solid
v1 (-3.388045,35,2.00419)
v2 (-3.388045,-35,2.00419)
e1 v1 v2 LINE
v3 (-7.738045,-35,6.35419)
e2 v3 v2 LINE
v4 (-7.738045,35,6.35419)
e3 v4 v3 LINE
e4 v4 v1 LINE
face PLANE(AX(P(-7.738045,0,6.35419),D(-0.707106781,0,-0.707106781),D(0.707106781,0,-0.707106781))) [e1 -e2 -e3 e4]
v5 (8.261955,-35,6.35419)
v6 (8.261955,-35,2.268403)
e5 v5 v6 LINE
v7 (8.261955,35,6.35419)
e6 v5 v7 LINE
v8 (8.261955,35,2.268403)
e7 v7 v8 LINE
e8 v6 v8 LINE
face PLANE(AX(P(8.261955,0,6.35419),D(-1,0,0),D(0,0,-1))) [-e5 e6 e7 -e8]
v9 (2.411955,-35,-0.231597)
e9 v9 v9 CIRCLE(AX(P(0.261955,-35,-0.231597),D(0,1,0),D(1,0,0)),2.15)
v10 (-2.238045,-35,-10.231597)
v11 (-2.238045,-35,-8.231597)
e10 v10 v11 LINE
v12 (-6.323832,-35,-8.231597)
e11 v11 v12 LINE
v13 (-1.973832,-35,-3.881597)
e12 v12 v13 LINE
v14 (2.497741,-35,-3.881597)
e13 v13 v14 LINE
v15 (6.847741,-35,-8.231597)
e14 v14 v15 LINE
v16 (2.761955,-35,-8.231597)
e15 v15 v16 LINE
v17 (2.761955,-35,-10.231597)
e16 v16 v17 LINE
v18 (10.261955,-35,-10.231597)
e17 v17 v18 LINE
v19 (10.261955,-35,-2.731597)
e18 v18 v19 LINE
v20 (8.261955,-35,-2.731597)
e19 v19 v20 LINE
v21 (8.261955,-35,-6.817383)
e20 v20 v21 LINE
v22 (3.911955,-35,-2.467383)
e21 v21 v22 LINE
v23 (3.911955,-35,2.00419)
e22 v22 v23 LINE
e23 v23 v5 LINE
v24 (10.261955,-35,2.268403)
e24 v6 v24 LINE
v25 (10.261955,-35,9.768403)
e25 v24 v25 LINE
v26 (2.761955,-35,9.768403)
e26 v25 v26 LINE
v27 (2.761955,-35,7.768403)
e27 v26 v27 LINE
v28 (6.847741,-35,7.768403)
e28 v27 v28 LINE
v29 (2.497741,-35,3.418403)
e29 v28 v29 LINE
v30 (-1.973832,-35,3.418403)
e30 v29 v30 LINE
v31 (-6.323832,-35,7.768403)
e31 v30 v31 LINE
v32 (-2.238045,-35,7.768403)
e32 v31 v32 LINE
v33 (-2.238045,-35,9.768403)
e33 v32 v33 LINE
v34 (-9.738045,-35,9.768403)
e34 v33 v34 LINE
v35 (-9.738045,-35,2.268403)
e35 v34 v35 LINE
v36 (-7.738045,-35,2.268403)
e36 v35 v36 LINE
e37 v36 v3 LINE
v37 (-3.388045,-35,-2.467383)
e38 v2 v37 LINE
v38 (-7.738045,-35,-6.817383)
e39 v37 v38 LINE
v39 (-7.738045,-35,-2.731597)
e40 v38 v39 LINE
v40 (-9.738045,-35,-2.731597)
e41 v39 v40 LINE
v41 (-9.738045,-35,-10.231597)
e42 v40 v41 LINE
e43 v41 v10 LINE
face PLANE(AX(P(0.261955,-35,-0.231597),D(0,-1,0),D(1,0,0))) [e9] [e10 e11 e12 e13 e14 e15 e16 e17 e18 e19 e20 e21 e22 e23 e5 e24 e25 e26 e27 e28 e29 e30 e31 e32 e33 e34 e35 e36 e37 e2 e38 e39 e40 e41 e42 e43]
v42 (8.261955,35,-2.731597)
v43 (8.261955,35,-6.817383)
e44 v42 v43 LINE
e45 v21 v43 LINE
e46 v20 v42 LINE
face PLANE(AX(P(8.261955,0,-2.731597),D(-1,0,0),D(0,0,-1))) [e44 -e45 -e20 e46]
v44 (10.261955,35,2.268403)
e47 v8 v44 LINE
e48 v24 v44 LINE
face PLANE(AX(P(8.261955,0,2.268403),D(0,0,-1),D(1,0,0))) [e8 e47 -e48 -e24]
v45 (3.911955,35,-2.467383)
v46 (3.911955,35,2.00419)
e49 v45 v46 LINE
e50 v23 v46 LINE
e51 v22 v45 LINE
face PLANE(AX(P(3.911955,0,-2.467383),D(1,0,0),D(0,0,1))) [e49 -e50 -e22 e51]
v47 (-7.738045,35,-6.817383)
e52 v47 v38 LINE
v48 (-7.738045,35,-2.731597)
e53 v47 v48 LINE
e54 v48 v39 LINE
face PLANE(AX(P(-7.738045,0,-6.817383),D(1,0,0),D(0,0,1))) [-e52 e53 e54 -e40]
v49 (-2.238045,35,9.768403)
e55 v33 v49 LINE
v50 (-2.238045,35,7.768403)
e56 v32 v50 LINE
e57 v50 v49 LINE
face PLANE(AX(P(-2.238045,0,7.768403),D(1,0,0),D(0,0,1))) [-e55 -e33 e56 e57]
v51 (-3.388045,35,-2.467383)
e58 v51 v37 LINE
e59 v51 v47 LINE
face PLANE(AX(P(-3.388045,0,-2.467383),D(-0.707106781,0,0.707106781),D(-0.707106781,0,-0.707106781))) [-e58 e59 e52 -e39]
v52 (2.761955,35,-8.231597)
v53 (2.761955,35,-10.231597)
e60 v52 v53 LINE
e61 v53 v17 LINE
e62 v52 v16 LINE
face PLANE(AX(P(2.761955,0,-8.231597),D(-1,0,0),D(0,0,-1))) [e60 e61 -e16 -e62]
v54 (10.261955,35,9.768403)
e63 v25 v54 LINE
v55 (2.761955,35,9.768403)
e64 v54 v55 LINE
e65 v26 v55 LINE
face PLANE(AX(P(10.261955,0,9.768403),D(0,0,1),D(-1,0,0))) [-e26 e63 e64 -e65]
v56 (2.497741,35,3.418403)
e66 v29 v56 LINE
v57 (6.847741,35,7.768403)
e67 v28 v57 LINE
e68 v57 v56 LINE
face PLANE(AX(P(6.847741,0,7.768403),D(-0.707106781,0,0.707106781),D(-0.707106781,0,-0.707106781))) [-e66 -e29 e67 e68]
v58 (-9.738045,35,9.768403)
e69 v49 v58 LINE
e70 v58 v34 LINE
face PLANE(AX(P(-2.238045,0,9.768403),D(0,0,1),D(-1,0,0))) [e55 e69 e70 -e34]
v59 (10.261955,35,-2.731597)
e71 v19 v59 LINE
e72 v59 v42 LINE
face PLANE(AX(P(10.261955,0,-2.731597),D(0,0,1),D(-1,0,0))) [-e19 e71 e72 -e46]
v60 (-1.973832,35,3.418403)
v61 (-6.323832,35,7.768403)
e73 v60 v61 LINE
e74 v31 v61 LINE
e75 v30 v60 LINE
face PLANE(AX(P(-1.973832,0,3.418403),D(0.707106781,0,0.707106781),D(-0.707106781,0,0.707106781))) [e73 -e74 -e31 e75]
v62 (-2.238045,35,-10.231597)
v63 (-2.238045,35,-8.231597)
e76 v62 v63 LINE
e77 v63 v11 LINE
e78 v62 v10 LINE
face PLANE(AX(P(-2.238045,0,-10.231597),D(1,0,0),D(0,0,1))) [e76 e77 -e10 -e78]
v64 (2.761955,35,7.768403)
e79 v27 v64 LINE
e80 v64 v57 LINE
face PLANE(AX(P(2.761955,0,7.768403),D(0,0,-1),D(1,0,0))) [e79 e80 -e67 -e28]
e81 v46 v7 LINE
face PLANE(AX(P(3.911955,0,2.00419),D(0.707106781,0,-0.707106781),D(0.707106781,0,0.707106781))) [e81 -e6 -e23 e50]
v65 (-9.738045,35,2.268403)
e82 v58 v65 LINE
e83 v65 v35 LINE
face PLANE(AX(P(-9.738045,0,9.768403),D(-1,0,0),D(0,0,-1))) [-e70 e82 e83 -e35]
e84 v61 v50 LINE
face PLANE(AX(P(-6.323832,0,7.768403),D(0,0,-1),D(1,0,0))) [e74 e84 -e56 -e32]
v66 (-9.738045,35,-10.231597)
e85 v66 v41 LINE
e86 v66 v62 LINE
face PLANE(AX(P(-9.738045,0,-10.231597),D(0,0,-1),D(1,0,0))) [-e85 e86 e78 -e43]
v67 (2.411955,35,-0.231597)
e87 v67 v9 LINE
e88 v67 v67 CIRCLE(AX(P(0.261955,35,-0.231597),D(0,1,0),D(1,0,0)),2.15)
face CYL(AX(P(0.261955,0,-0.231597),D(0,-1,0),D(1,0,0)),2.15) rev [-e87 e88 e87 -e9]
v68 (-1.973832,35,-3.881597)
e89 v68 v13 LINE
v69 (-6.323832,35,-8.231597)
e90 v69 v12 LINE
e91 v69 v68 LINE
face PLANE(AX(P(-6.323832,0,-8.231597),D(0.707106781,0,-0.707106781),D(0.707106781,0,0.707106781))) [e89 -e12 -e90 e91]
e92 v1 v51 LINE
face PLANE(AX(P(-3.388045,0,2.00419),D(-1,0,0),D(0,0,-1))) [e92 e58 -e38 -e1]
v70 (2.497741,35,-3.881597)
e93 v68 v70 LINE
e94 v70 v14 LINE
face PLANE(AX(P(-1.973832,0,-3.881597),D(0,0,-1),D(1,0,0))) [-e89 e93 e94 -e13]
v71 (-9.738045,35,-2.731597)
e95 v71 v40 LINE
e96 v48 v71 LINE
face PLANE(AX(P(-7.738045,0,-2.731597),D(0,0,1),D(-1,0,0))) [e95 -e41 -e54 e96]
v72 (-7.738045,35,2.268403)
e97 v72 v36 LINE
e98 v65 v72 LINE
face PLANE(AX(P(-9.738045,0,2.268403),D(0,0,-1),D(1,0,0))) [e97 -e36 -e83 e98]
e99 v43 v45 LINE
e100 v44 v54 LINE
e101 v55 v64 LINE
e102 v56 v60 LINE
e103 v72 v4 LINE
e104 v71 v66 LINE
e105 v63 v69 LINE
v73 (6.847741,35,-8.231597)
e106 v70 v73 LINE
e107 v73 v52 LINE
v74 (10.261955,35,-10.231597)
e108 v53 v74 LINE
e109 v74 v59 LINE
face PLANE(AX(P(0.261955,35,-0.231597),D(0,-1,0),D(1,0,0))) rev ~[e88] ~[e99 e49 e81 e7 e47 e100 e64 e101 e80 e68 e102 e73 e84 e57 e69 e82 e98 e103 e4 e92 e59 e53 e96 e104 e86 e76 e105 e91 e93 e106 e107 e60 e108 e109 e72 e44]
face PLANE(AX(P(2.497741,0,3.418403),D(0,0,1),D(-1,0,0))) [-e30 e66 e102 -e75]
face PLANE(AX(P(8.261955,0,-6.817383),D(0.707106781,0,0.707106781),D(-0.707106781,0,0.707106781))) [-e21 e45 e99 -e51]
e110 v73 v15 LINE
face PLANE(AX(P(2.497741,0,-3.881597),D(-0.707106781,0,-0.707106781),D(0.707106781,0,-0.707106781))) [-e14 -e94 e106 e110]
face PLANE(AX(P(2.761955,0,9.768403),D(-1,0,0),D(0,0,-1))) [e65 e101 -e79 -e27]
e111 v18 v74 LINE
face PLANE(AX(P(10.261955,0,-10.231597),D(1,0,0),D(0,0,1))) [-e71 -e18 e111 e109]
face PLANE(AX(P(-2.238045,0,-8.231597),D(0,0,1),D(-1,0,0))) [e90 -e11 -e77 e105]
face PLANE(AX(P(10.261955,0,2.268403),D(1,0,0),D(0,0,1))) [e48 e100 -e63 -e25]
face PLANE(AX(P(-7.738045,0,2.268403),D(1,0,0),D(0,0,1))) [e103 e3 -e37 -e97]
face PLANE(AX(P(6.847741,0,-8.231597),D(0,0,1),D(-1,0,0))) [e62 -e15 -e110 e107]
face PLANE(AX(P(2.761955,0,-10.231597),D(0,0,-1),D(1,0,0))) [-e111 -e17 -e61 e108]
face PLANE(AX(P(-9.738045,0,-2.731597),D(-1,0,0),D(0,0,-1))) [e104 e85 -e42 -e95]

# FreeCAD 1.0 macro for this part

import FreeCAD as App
import Part
import Sketcher
from FreeCAD import Vector

doc = App.newDocument("Part")
body = doc.addObject("PartDesign::Body", "Body")

sketch1 = body.newObject("Sketcher::SketchObject", "Sketch")
sketch1.AttachmentSupport = (doc.getObject("XZ_Plane"), [""])
sketch1.MapMode = "FlatFace"
sketch1.addGeometry([
    Part.LineSegment(Vector(-2.238045, 9.768403, 0), Vector(-9.738045, 9.768403, 0)),
    Part.LineSegment(Vector(-9.738045, 9.768403, 0), Vector(-9.738045, 2.268403, 0)),
    Part.LineSegment(Vector(-9.738045, 2.268403, 0), Vector(-7.738045, 2.268403, 0)),
    Part.LineSegment(Vector(-7.738045, 2.268403, 0), Vector(-7.738045, 6.35419, 0)),
    Part.LineSegment(Vector(-7.738045, 6.35419, 0), Vector(-3.388045, 2.00419, 0)),
    Part.LineSegment(Vector(-3.388045, 2.00419, 0), Vector(-3.388045, -2.467383, 0)),
    Part.LineSegment(Vector(-3.388045, -2.467383, 0), Vector(-7.738045, -6.817383, 0)),
    Part.LineSegment(Vector(-7.738045, -6.817383, 0), Vector(-7.738045, -2.731597, 0)),
    Part.LineSegment(Vector(-7.738045, -2.731597, 0), Vector(-9.738045, -2.731597, 0)),
    Part.LineSegment(Vector(-9.738045, -2.731597, 0), Vector(-9.738045, -10.231597, 0)),
    Part.LineSegment(Vector(-9.738045, -10.231597, 0), Vector(-2.238045, -10.231597, 0)),
    Part.LineSegment(Vector(-2.238045, -10.231597, 0), Vector(-2.238045, -8.231597, 0)),
    Part.LineSegment(Vector(-2.238045, -8.231597, 0), Vector(-6.323832, -8.231597, 0)),
    Part.LineSegment(Vector(-6.323832, -8.231597, 0), Vector(-1.973832, -3.881597, 0)),
    Part.LineSegment(Vector(-1.973832, -3.881597, 0), Vector(2.497741, -3.881597, 0)),
    Part.LineSegment(Vector(2.497741, -3.881597, 0), Vector(6.847741, -8.231597, 0)),
    Part.LineSegment(Vector(6.847741, -8.231597, 0), Vector(2.761955, -8.231597, 0)),
    Part.LineSegment(Vector(2.761955, -8.231597, 0), Vector(2.761955, -10.231597, 0)),
    Part.LineSegment(Vector(2.761955, -10.231597, 0), Vector(10.261955, -10.231597, 0)),
    Part.LineSegment(Vector(10.261955, -10.231597, 0), Vector(10.261955, -2.731597, 0)),
    Part.LineSegment(Vector(10.261955, -2.731597, 0), Vector(8.261955, -2.731597, 0)),
    Part.LineSegment(Vector(8.261955, -2.731597, 0), Vector(8.261955, -6.817383, 0)),
    Part.LineSegment(Vector(8.261955, -6.817383, 0), Vector(3.911955, -2.467383, 0)),
    Part.LineSegment(Vector(3.911955, -2.467383, 0), Vector(3.911955, 2.00419, 0)),
    Part.LineSegment(Vector(3.911955, 2.00419, 0), Vector(8.261955, 6.35419, 0)),
    Part.LineSegment(Vector(8.261955, 6.35419, 0), Vector(8.261955, 2.268403, 0)),
    Part.LineSegment(Vector(8.261955, 2.268403, 0), Vector(10.261955, 2.268403, 0)),
    Part.LineSegment(Vector(10.261955, 2.268403, 0), Vector(10.261955, 9.768403, 0)),
    Part.LineSegment(Vector(10.261955, 9.768403, 0), Vector(2.761955, 9.768403, 0)),
    Part.LineSegment(Vector(2.761955, 9.768403, 0), Vector(2.761955, 7.768403, 0)),
    Part.LineSegment(Vector(2.761955, 7.768403, 0), Vector(6.847741, 7.768403, 0)),
    Part.LineSegment(Vector(6.847741, 7.768403, 0), Vector(2.497741, 3.418403, 0)),
    Part.LineSegment(Vector(2.497741, 3.418403, 0), Vector(-1.973832, 3.418403, 0)),
    Part.LineSegment(Vector(-1.973832, 3.418403, 0), Vector(-6.323832, 7.768403, 0)),
    Part.LineSegment(Vector(-6.323832, 7.768403, 0), Vector(-2.238045, 7.768403, 0)),
    Part.LineSegment(Vector(-2.238045, 7.768403, 0), Vector(-2.238045, 9.768403, 0)),
    Part.Circle(Vector(0.261955, -0.231597, 0), Vector(0, 0, 1), 2.15),
], False)
sketch1.addConstraint([
    Sketcher.Constraint("Coincident", 0, 2, 1, 1),
    Sketcher.Constraint("Coincident", 1, 2, 2, 1),
    Sketcher.Constraint("Coincident", 2, 2, 3, 1),
    Sketcher.Constraint("Coincident", 3, 2, 4, 1),
    Sketcher.Constraint("Coincident", 4, 2, 5, 1),
    Sketcher.Constraint("Coincident", 5, 2, 6, 1),
    Sketcher.Constraint("Coincident", 6, 2, 7, 1),
    Sketcher.Constraint("Coincident", 7, 2, 8, 1),
    Sketcher.Constraint("Coincident", 8, 2, 9, 1),
    Sketcher.Constraint("Coincident", 9, 2, 10, 1),
    Sketcher.Constraint("Coincident", 10, 2, 11, 1),
    Sketcher.Constraint("Coincident", 11, 2, 12, 1),
    Sketcher.Constraint("Coincident", 12, 2, 13, 1),
    Sketcher.Constraint("Coincident", 13, 2, 14, 1),
    Sketcher.Constraint("Coincident", 14, 2, 15, 1),
    Sketcher.Constraint("Coincident", 15, 2, 16, 1),
    Sketcher.Constraint("Coincident", 16, 2, 17, 1),
    Sketcher.Constraint("Coincident", 17, 2, 18, 1),
    Sketcher.Constraint("Coincident", 18, 2, 19, 1),
    Sketcher.Constraint("Coincident", 19, 2, 20, 1),
    Sketcher.Constraint("Coincident", 20, 2, 21, 1),
    Sketcher.Constraint("Coincident", 21, 2, 22, 1),
    Sketcher.Constraint("Coincident", 22, 2, 23, 1),
    Sketcher.Constraint("Coincident", 23, 2, 24, 1),
    Sketcher.Constraint("Coincident", 24, 2, 25, 1),
    Sketcher.Constraint("Coincident", 25, 2, 26, 1),
    Sketcher.Constraint("Coincident", 26, 2, 27, 1),
    Sketcher.Constraint("Coincident", 27, 2, 28, 1),
    Sketcher.Constraint("Coincident", 28, 2, 29, 1),
    Sketcher.Constraint("Coincident", 29, 2, 30, 1),
    Sketcher.Constraint("Coincident", 30, 2, 31, 1),
    Sketcher.Constraint("Coincident", 31, 2, 32, 1),
    Sketcher.Constraint("Coincident", 32, 2, 33, 1),
    Sketcher.Constraint("Coincident", 33, 2, 34, 1),
    Sketcher.Constraint("Coincident", 34, 2, 35, 1),
    Sketcher.Constraint("Coincident", 35, 2, 0, 1),
    Sketcher.Constraint("Horizontal", 0),
    Sketcher.Constraint("Vertical", 1),
    Sketcher.Constraint("Horizontal", 2),
    Sketcher.Constraint("Vertical", 3),
    Sketcher.Constraint("Vertical", 5),
    Sketcher.Constraint("Vertical", 7),
    Sketcher.Constraint("Horizontal", 8),
    Sketcher.Constraint("Vertical", 9),
    Sketcher.Constraint("Horizontal", 10),
    Sketcher.Constraint("Vertical", 11),
    Sketcher.Constraint("Horizontal", 12),
    Sketcher.Constraint("Horizontal", 14),
    Sketcher.Constraint("Horizontal", 16),
    Sketcher.Constraint("Vertical", 17),
    Sketcher.Constraint("Horizontal", 18),
    Sketcher.Constraint("Vertical", 19),
    Sketcher.Constraint("Horizontal", 20),
    Sketcher.Constraint("Vertical", 21),
    Sketcher.Constraint("Vertical", 23),
    Sketcher.Constraint("Vertical", 25),
    Sketcher.Constraint("Horizontal", 26),
    Sketcher.Constraint("Vertical", 27),
    Sketcher.Constraint("Horizontal", 28),
    Sketcher.Constraint("Vertical", 29),
    Sketcher.Constraint("Horizontal", 30),
    Sketcher.Constraint("Horizontal", 32),
    Sketcher.Constraint("Horizontal", 34),
    Sketcher.Constraint("Vertical", 35),
    Sketcher.Constraint("Perpendicular", 4, 6),
    Sketcher.Constraint("Parallel", 6, 13),
    Sketcher.Constraint("Perpendicular", 13, 15),
    Sketcher.Constraint("Parallel", 15, 22),
    Sketcher.Constraint("Perpendicular", 22, 24),
    Sketcher.Constraint("Parallel", 24, 31),
    Sketcher.Constraint("Perpendicular", 31, 33),
    Sketcher.Constraint("Horizontal", 12, 2, 15, 2),
    Sketcher.Constraint("Horizontal", 10, 2, 17, 2),
    Sketcher.Constraint("Horizontal", 8, 2, 19, 2),
    Sketcher.Constraint("Horizontal", 6, 2, 21, 2),
    Sketcher.Constraint("Horizontal", 5, 2, 22, 2),
    Sketcher.Constraint("Horizontal", 4, 2, 23, 2),
    Sketcher.Constraint("Horizontal", 3, 2, 24, 2),
    Sketcher.Constraint("Horizontal", 2, 2, 25, 2),
    Sketcher.Constraint("Horizontal", 0, 2, 27, 2),
    Sketcher.Constraint("Horizontal", 30, 2, 33, 2),
    Sketcher.Constraint("Vertical", 3, 2, 6, 2),
    Sketcher.Constraint("Vertical", 1, 2, 8, 2),
    Sketcher.Constraint("Vertical", 21, 2, 24, 2),
    Sketcher.Constraint("Vertical", 19, 2, 26, 2),
    Sketcher.Constraint("Vertical", 17, 2, 28, 2),
    Sketcher.Constraint("Vertical", 15, 2, 30, 2),
    Sketcher.Constraint("Vertical", 14, 2, 31, 2),
    Sketcher.Constraint("Vertical", 13, 2, 32, 2),
    Sketcher.Constraint("Vertical", 11, 2, 34, 2),
    Sketcher.Constraint("Equal", 12, 16),
    Sketcher.Constraint("Equal", 10, 18),
    Sketcher.Constraint("Equal", 8, 20),
    Sketcher.Constraint("Equal", 28, 1),
    Sketcher.Constraint("Equal", 34, 3),
    Sketcher.Constraint("Equal", 32, 5),
    Sketcher.Constraint("Equal", 3, 7),
    Sketcher.Constraint("Equal", 1, 9),
    Sketcher.Constraint("Equal", 26, 11),
    Sketcher.Constraint("Equal", 17, 29),
    Sketcher.Constraint("Equal", 6, 13),
    Sketcher.Constraint("Diameter", 36, 4.3),
    Sketcher.Constraint("DistanceX", 2, 1, 2, 2, 2.0),
    Sketcher.Constraint("DistanceX", 0, 2, 0, 1, 7.5),
    Sketcher.Constraint("DistanceX", 0, 2, 36, 3, 10.0),
    Sketcher.Constraint("DistanceY", 36, 3, 0, 2, 10.0),
    Sketcher.Constraint("DistanceY", 7, 2, 2, 2, 5.0),
    Sketcher.Constraint("DistanceX", 4, 2, 23, 2, 7.3),
    Sketcher.Constraint("DistanceX", 12, 2, 12, 1, 4.085787),
    Sketcher.Constraint("DistanceY", -1, 1, 3, 2, 6.35419),
    Sketcher.Constraint("DistanceX", -1, 1, 14, 2, 2.497741),
])
pad1 = body.newObject("PartDesign::Pad", "Pad")
pad1.Profile = sketch1
pad1.Type = "TwoLengths"
pad1.Length = 35
pad1.Length2 = 35

doc.recompute()
